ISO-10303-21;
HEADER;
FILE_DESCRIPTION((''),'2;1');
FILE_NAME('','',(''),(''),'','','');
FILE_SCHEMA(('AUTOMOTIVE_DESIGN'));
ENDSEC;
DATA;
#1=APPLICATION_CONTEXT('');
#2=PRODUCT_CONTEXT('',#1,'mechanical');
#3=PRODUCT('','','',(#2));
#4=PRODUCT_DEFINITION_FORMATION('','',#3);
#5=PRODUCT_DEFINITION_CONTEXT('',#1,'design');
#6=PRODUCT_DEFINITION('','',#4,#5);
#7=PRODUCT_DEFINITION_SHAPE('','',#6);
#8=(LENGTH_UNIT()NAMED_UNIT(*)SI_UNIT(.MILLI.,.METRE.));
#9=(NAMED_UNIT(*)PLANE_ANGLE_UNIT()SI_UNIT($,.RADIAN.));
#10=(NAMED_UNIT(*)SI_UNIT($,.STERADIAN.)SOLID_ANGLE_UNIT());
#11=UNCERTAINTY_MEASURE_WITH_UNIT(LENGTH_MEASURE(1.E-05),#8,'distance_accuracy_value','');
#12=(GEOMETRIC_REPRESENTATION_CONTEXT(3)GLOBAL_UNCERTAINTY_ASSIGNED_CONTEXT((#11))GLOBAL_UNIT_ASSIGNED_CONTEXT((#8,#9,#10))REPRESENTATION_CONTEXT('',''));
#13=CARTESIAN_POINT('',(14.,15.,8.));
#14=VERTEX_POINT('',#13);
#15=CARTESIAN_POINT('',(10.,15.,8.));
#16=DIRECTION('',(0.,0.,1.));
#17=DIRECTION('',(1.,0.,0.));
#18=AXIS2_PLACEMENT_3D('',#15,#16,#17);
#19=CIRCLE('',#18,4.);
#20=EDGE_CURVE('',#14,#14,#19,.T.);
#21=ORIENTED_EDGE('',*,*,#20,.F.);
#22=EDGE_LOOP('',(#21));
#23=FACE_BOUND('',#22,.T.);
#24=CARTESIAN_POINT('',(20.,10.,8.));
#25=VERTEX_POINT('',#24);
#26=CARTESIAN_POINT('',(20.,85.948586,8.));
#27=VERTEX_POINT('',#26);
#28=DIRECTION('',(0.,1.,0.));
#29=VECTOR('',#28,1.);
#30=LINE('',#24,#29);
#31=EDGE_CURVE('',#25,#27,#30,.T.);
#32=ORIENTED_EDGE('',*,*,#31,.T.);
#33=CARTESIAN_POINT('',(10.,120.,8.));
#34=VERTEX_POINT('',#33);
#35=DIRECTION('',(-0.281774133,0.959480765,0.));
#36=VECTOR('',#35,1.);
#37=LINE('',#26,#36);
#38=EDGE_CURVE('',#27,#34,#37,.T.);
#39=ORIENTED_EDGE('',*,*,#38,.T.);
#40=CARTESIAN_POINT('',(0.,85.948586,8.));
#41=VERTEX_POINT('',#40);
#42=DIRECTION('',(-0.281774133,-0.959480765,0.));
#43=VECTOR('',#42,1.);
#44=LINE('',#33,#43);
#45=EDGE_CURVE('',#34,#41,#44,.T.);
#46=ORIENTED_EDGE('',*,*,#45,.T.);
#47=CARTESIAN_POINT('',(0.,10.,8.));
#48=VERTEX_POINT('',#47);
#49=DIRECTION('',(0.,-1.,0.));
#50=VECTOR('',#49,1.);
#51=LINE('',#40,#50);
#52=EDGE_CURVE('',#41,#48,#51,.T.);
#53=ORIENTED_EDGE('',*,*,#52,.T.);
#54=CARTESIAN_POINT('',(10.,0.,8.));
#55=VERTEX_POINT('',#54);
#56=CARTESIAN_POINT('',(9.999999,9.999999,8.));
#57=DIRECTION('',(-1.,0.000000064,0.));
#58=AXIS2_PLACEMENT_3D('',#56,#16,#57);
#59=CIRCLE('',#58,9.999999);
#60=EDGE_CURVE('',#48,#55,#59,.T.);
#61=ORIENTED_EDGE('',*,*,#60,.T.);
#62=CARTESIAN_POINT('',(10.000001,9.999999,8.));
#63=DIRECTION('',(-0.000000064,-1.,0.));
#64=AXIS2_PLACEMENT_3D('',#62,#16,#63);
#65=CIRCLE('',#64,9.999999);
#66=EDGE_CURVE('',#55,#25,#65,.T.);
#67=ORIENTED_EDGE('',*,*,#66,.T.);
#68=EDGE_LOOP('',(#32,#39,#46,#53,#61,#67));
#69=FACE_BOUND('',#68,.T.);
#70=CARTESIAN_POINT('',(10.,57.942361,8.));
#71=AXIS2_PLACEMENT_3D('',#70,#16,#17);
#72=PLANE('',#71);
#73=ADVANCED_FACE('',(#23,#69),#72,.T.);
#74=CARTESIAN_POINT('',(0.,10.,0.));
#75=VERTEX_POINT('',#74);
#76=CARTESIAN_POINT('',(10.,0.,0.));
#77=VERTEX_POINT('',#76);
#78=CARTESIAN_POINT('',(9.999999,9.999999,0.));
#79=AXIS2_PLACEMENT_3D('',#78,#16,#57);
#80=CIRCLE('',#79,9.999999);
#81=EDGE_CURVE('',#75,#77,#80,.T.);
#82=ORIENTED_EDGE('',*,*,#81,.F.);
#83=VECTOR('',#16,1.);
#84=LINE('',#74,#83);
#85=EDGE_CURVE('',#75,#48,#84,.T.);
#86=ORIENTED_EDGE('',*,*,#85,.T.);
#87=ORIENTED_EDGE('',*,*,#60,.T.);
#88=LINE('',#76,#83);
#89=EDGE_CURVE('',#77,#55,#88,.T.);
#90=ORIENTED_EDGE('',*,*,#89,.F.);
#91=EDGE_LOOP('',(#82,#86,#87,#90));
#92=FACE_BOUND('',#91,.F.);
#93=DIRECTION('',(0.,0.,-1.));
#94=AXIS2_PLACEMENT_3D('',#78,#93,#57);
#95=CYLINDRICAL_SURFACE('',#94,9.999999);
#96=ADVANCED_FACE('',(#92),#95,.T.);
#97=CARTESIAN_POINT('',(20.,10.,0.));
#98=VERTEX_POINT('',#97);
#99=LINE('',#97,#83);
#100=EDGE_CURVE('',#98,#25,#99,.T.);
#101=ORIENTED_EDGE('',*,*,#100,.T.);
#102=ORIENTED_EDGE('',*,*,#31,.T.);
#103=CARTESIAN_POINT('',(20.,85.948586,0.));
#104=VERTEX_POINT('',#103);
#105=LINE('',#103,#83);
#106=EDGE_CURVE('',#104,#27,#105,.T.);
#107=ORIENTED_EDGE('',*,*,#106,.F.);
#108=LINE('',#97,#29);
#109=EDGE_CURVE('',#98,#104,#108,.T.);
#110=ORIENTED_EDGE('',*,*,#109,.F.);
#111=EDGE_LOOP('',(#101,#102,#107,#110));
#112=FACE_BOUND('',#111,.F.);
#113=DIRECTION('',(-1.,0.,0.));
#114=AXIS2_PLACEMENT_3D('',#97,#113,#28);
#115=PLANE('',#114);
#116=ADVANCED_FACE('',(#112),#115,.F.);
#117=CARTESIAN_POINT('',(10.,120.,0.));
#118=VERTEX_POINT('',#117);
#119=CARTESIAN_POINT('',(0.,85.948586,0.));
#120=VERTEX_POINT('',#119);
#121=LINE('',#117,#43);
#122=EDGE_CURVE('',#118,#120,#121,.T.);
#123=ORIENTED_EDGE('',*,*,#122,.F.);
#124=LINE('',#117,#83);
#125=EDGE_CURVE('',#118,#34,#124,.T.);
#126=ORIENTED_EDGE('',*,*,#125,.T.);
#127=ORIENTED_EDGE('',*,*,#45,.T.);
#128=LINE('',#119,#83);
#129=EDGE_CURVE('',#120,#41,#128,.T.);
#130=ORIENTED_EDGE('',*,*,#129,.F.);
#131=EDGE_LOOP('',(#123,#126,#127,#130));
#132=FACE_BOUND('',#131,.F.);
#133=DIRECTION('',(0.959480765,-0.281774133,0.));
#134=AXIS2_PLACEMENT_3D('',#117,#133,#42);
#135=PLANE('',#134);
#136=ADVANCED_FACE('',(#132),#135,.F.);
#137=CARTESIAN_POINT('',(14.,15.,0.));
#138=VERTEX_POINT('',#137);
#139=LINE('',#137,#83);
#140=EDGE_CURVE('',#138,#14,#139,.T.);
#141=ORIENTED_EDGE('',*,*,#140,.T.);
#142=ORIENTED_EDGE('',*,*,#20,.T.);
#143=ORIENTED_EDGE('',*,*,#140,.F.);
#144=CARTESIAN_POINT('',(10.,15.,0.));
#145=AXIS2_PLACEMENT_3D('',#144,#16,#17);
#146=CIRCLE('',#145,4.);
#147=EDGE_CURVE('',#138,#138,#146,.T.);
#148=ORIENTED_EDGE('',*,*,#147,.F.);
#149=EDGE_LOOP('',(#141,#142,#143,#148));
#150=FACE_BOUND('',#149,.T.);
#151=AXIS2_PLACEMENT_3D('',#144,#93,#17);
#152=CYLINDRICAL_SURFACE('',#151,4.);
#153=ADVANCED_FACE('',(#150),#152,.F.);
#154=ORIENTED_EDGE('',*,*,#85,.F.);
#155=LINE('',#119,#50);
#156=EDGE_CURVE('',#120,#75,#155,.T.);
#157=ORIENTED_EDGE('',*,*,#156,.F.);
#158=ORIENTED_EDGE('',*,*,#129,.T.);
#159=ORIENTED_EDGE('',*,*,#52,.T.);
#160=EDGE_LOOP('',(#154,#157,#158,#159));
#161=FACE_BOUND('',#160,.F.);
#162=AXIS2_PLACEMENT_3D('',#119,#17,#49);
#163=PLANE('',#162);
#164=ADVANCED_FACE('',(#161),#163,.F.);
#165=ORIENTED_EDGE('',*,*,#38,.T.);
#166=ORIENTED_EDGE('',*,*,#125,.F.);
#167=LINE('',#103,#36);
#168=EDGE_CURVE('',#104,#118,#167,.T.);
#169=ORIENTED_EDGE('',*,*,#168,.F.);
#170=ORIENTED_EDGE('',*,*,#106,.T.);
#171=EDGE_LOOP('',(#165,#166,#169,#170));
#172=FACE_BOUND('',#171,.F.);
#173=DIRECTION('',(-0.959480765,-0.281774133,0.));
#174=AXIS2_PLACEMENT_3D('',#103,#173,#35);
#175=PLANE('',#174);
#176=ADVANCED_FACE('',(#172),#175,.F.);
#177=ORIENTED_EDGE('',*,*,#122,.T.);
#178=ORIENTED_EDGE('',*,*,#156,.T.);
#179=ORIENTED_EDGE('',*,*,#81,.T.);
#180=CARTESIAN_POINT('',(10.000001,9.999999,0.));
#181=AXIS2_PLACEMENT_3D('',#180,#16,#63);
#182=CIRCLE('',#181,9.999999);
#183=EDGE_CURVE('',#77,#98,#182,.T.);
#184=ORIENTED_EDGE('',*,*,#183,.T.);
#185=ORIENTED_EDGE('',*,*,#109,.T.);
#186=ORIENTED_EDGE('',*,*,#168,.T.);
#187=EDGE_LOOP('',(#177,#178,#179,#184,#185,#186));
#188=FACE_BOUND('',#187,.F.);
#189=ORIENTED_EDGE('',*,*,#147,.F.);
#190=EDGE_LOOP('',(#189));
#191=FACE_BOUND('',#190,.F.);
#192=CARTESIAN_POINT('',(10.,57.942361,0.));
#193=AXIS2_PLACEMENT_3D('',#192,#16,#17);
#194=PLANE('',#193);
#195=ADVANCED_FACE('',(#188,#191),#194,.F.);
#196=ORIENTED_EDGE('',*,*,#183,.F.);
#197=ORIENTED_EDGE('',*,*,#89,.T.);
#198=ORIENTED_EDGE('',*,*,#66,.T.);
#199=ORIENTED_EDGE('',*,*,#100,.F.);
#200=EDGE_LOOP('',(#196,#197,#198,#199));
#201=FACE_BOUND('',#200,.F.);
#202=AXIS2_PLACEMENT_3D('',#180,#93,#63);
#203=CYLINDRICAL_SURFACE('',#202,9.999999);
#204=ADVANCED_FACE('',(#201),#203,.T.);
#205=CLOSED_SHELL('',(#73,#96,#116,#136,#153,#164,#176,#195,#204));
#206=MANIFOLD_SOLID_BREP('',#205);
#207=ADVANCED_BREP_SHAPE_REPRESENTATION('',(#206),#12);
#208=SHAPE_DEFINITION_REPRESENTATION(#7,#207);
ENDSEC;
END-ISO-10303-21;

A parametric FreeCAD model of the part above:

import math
import FreeCAD as App
import Part
import Sketcher

V = App.Vector

doc = App.newDocument("Part")
body = doc.addObject("PartDesign::Body", "Body")

# Sketch on XY plane
sketch1 = body.newObject("Sketcher::SketchObject", "Sketch")
sketch1.AttachmentSupport = (doc.getObject("XY_Plane"), [""])
sketch1.MapMode = "FlatFace"
sketch1.addGeometry([
    Part.LineSegment(V(0, 85.9, 0), V(0, 10, 0)),  # 0
    Part.ArcOfCircle(Part.Circle(V(10, 10, 0), V(0, 0, 1), 10), math.radians(180), math.radians(270)),  # 1
    Part.ArcOfCircle(Part.Circle(V(10, 10, 0), V(0, 0, 1), 10), math.radians(-90), math.radians(0)),  # 2
    Part.LineSegment(V(20, 10, 0), V(20, 85.9, 0)),  # 3
    Part.LineSegment(V(20, 85.9, 0), V(10, 120, 0)),  # 4
    Part.LineSegment(V(10, 120, 0), V(0, 85.9, 0)),  # 5
    Part.Circle(V(10, 15, 0), V(0, 0, 1), 4),  # 6
], False)
sketch1.addConstraint([
    Sketcher.Constraint("Tangent", 0, 2, 1, 1),
    Sketcher.Constraint("Tangent", 1, 2, 2, 1),
    Sketcher.Constraint("Tangent", 2, 2, 3, 1),
    Sketcher.Constraint("Coincident", 3, 2, 4, 1),
    Sketcher.Constraint("Coincident", 4, 2, 5, 1),
    Sketcher.Constraint("Coincident", 5, 2, 0, 1),
    Sketcher.Constraint("Vertical", 0),
    Sketcher.Constraint("Vertical", 3),
    Sketcher.Constraint("Equal", 1, 2),
    Sketcher.Constraint("PointOnObject", 0, 2, -2),
    Sketcher.Constraint("PointOnObject", 1, 2, -1),
    Sketcher.Constraint("Horizontal", 3, 2, 5, 2),
    Sketcher.Constraint("Vertical", 2, 3, 6, 3),
    Sketcher.Constraint("Vertical", 6, 3, 1, 2),
    Sketcher.Constraint("Vertical", 1, 2, 4, 2),
    Sketcher.Constraint("Diameter", 6, 8.0),
    Sketcher.Constraint("Radius", 1, 9.999999),
    Sketcher.Constraint("DistanceY", -1, 1, 6, 3, 15.0),
    Sketcher.Constraint("DistanceY", -1, 1, 4, 2, 120.0),
    Sketcher.Constraint("Distance", 4, 35.489418),
])
pad1 = body.newObject("PartDesign::Pad", "Pad")
pad1.Profile = sketch1
pad1.Length = 8

doc.recompute()
